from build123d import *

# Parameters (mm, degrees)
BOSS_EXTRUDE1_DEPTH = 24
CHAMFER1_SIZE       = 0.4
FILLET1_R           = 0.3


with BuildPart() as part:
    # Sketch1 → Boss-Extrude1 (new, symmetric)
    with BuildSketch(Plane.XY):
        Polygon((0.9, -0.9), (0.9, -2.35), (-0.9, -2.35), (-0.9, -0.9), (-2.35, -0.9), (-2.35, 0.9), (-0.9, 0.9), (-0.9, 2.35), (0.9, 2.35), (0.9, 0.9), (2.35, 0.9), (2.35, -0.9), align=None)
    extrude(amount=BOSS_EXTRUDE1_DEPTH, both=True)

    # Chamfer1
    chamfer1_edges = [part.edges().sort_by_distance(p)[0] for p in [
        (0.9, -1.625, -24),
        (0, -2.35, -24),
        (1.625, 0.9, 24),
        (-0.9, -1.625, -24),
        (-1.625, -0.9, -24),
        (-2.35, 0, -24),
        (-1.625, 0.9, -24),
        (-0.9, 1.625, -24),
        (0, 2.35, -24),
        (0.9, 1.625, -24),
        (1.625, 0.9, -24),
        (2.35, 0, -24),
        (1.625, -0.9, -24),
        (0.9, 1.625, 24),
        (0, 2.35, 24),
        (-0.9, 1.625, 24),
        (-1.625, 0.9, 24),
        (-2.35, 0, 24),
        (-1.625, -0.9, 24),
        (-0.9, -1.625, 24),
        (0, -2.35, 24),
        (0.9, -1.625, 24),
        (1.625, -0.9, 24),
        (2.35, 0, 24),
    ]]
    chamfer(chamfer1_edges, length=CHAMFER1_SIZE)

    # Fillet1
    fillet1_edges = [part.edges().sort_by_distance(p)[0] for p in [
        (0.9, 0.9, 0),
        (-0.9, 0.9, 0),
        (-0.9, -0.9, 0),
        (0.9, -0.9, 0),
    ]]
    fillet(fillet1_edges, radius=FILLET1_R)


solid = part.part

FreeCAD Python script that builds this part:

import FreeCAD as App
import Part
import Sketcher

V = App.Vector
Q = App.Units.Quantity


def edges_at(feature, points):
    """Names of the edges that pass closest to the given points."""
    edges = feature.Shape.Edges
    near = lambda p: min(range(len(edges)), key=lambda i: edges[i].distToShape(Part.Vertex(*p))[0])
    return sorted({f"Edge{near(p) + 1}" for p in points})


def add_polygon(sketch, points):
    """Adds a closed chain of lines whose ends are joined by coincident constraints."""
    first, n = sketch.GeometryCount, len(points)
    for a, b in zip(points, points[1:] + points[:1]):
        sketch.addGeometry(Part.LineSegment(App.Vector(*a, 0), App.Vector(*b, 0)), False)
    for i in range(n):
        sketch.addConstraint(Sketcher.Constraint("Coincident", first + i, 2, first + (i + 1) % n, 1))

doc = App.newDocument("Part")
body = doc.addObject("PartDesign::Body", "Body")

# Sketch on XY plane
sketch1 = body.newObject("Sketcher::SketchObject", "Sketch")
sketch1.AttachmentSupport = (doc.getObject("XY_Plane"), [""])
sketch1.MapMode = "FlatFace"
add_polygon(sketch1, [(0.9, -2.35), (0.9, -0.9), (2.35, -0.9), (2.35, 0.9), (0.9, 0.9), (0.9, 2.35), (-0.9, 2.35), (-0.9, 0.9), (-2.35, 0.9), (-2.35, -0.9), (-0.9, -0.9), (-0.9, -2.35)])  # lines 0-11
sketch1.addConstraint([
    Sketcher.Constraint("Vertical", 0),
    Sketcher.Constraint("Horizontal", 1),
    Sketcher.Constraint("Vertical", 2),
    Sketcher.Constraint("Horizontal", 3),
    Sketcher.Constraint("Vertical", 4),
    Sketcher.Constraint("Horizontal", 5),
    Sketcher.Constraint("Vertical", 6),
    Sketcher.Constraint("Horizontal", 7),
    Sketcher.Constraint("Vertical", 8),
    Sketcher.Constraint("Horizontal", 9),
    Sketcher.Constraint("Vertical", 10),
    Sketcher.Constraint("Horizontal", 11),
    Sketcher.Constraint("Symmetric", 0, 2, 6, 2, -1, 1),
    Sketcher.Constraint("Symmetric", 2, 2, 8, 2, -1, 1),
    Sketcher.Constraint("Symmetric", 4, 2, 10, 2, -1, 1),
    Sketcher.Constraint("Symmetric", 3, 2, 6, 2, -2),
    Sketcher.Constraint("Equal", 9, 0),
    Sketcher.Constraint("Equal", 11, 2),
    Sketcher.Constraint("DistanceX", 5, 2, 5, 1, Q("1.8 mm")),
    Sketcher.Constraint("DistanceX", 1, 1, 1, 2, Q("1.45 mm")),
])
pad1 = body.newObject("PartDesign::Pad", "Pad")
pad1.Profile = sketch1
pad1.Length = 48
pad1.Midplane = True
doc.recompute()

chamfer = body.newObject("PartDesign::Chamfer", "Chamfer")
chamfer.Base = (pad1, edges_at(pad1, [
    (0.9, -1.625, -24),
    (0, -2.35, -24),
    (1.625, 0.9, 24),
    (-0.9, -1.625, -24),
    (-1.625, -0.9, -24),
    (-2.35, 0, -24),
    (-1.625, 0.9, -24),
    (-0.9, 1.625, -24),
    (0, 2.35, -24),
    (0.9, 1.625, -24),
    (1.625, 0.9, -24),
    (2.35, 0, -24),
    (1.625, -0.9, -24),
    (0.9, 1.625, 24),
    (0, 2.35, 24),
    (-0.9, 1.625, 24),
    (-1.625, 0.9, 24),
    (-2.35, 0, 24),
    (-1.625, -0.9, 24),
    (-0.9, -1.625, 24),
    (0, -2.35, 24),
    (0.9, -1.625, 24),
    (1.625, -0.9, 24),
    (2.35, 0, 24),
]))
chamfer.Size = 0.4
doc.recompute()

fillet = body.newObject("PartDesign::Fillet", "Fillet")
fillet.Base = (chamfer, edges_at(chamfer, [
    (0.9, 0.9, 0),
    (-0.9, 0.9, 0),
    (-0.9, -0.9, 0),
    (0.9, -0.9, 0),
]))
fillet.Radius = 0.3

doc.recompute()
